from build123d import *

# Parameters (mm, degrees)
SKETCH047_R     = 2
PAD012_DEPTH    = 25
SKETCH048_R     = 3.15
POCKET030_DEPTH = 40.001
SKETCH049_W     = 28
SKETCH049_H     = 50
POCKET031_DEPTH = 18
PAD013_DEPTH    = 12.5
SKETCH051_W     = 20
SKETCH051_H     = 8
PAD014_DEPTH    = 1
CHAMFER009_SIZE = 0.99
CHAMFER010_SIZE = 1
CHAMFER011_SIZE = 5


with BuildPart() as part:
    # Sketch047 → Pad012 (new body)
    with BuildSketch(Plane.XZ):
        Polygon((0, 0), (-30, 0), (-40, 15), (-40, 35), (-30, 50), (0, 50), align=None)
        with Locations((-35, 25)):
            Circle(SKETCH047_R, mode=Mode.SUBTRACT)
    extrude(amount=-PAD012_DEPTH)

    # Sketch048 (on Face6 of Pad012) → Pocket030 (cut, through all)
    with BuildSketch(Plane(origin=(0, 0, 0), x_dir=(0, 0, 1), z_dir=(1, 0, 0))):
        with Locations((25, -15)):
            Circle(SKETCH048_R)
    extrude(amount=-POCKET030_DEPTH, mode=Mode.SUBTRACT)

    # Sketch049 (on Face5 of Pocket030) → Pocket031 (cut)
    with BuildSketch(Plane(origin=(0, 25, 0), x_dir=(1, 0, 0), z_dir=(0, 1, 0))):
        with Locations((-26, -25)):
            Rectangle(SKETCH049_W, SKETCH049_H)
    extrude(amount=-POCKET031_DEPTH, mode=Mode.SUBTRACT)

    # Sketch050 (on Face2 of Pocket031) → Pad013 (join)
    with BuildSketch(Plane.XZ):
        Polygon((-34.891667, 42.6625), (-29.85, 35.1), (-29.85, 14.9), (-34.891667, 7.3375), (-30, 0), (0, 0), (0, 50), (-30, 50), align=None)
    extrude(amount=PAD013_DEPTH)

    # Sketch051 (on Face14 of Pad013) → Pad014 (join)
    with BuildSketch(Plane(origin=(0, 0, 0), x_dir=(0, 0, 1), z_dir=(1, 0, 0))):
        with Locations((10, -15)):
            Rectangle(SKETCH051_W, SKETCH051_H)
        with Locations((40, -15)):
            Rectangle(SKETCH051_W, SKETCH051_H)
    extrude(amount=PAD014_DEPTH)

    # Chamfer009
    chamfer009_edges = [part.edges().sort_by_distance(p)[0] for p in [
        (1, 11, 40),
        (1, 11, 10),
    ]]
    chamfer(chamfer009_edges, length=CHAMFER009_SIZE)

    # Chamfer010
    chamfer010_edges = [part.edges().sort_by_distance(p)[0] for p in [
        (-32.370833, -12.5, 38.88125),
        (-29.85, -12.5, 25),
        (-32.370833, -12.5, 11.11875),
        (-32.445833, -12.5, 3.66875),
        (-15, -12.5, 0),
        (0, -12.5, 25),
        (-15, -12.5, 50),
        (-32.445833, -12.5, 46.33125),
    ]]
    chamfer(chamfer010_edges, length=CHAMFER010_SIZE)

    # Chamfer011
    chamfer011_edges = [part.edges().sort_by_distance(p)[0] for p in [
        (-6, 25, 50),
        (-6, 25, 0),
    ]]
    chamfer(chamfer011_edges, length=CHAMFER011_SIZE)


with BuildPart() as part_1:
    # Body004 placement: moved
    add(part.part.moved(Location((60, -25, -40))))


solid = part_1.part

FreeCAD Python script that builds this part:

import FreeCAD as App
import Part
import Sketcher
Q = App.Units.Quantity


def edges_at(feature, points):
    """Names of the edges that pass closest to the given points."""
    edges = feature.Shape.Edges
    near = lambda p: min(range(len(edges)), key=lambda i: edges[i].distToShape(Part.Vertex(*p))[0])
    return sorted({f"Edge{near(p) + 1}" for p in points})

doc = App.newDocument("Part")
params = doc.addObject("Spreadsheet::Sheet", "Params")
for row, (alias, value) in enumerate([
    ("sketch1_diameter", "4 mm"),
    ("sketch1_width", "30 mm"),
    ("sketch1_height", "50 mm"),
    ("sketch1_height2", "20 mm"),
    ("pad1_length", "25 mm"),
    ("sketch2_diameter", "6.3 mm"),
    ("sketch3_width", "28 mm"),
    ("sketch3_height", "50 mm"),
    ("pocket2_length", "18 mm"),
    ("sketch4_width", "30 mm"),
    ("sketch4_height", "50 mm"),
    ("sketch4_height2", "20.2 mm"),
    ("pad2_length", "12.5 mm"),
    ("sketch5_width", "8 mm"),
    ("sketch5_height", "20 mm"),
    ("pad3_length", "1 mm"),
    ("chamfer_size", "0.99 mm"),
    ("chamfer2_size", "1 mm"),
    ("chamfer3_size", "5 mm"),
], start=1):
    params.set(f"A{row}", alias)
    params.set(f"B{row}", "=" + value)
    params.setAlias(f"B{row}", alias)

body = doc.addObject("PartDesign::Body", "Body")

sketch1 = doc.addObject("Sketcher::SketchObject", "Sketch")
body.addObject(sketch1)
sketch1.AttachmentSupport = (doc.XZ_Plane, [""])
sketch1.MapMode = "FlatFace"
sketch1.addGeometry([
    Part.LineSegment(App.Vector(-30, 0, 0), App.Vector(0, 0, 0)),
    Part.LineSegment(App.Vector(0, 0, 0), App.Vector(0, 50, 0)),
    Part.LineSegment(App.Vector(0, 50, 0), App.Vector(-30, 50, 0)),
    Part.LineSegment(App.Vector(-30, 50, 0), App.Vector(-40, 35, 0)),
    Part.LineSegment(App.Vector(-40, 35, 0), App.Vector(-40, 15, 0)),
    Part.LineSegment(App.Vector(-40, 15, 0), App.Vector(-30, 0, 0)),
    Part.Circle(App.Vector(-35, 25, 0), App.Vector(0, 0, 1), 2),
], False)
sketch1.addConstraint([
    Sketcher.Constraint("Coincident", 0, 2, 1, 1),
    Sketcher.Constraint("Coincident", 1, 2, 2, 1),
    Sketcher.Constraint("Coincident", 2, 2, 3, 1),
    Sketcher.Constraint("Coincident", 3, 2, 4, 1),
    Sketcher.Constraint("Coincident", 4, 2, 5, 1),
    Sketcher.Constraint("Coincident", 5, 2, 0, 1),
    Sketcher.Constraint("Horizontal", 0),
    Sketcher.Constraint("Vertical", 1),
    Sketcher.Constraint("Horizontal", 2),
    Sketcher.Constraint("Vertical", 4),
    Sketcher.Constraint("Coincident", 0, 2, -1, 1),
    Sketcher.Constraint("Vertical", 2, 2, 5, 2),
    Sketcher.Constraint("Equal", 3, 5),
    Sketcher.Constraint("Diameter", 6, Q("4 mm")),
    Sketcher.Constraint("DistanceX", 0, 1, 0, 2, Q("30 mm")),
    Sketcher.Constraint("DistanceY", 1, 1, 1, 2, Q("50 mm")),
    Sketcher.Constraint("DistanceY", 4, 2, 4, 1, Q("20 mm")),
    Sketcher.Constraint("DistanceX", 6, 3, -1, 1, Q("35 mm")),
    Sketcher.Constraint("DistanceY", -1, 1, 6, 3, Q("25 mm")),
    Sketcher.Constraint("DistanceX", 3, 2, -1, 1, Q("40 mm")),
])
sketch1.setExpression("Constraints[13]", "Params.sketch1_diameter")
sketch1.setExpression("Constraints[14]", "Params.sketch1_width")
sketch1.setExpression("Constraints[15]", "Params.sketch1_height")
sketch1.setExpression("Constraints[16]", "Params.sketch1_height2")
pad1 = doc.addObject("PartDesign::Pad", "Pad")
body.addObject(pad1)
pad1.Profile = sketch1
pad1.setExpression("Length", "Params.pad1_length")
pad1.Reversed = True

sketch2 = doc.addObject("Sketcher::SketchObject", "Sketch001")
body.addObject(sketch2)
sketch2.AttachmentSupport = (doc.YZ_Plane, [""])
sketch2.MapMode = "FlatFace"
sketch2.addGeometry(Part.Circle(App.Vector(15, 25, 0), App.Vector(0, 0, 1), 3.1), False)
sketch2.addConstraint([
    Sketcher.Constraint("Diameter", 0, Q("6.3 mm")),
    Sketcher.Constraint("DistanceX", -1, 1, 0, 3, Q("15 mm")),
    Sketcher.Constraint("DistanceY", -1, 1, 0, 3, Q("25 mm")),
])
sketch2.setExpression("Constraints[0]", "Params.sketch2_diameter")
pocket1 = doc.addObject("PartDesign::Pocket", "Pocket")
body.addObject(pocket1)
pocket1.Profile = sketch2
pocket1.Type = "ThroughAll"

sketch3 = doc.addObject("Sketcher::SketchObject", "Sketch002")
body.addObject(sketch3)
sketch3.AttachmentSupport = (doc.XZ_Plane, [""])
sketch3.MapMode = "FlatFace"
sketch3.AttachmentOffset = App.Placement(App.Vector(0, 0, -25), App.Rotation())
sketch3.addGeometry([
    Part.LineSegment(App.Vector(-40, 0, 0), App.Vector(-40, 50, 0)),
    Part.LineSegment(App.Vector(-40, 50, 0), App.Vector(-12, 50, 0)),
    Part.LineSegment(App.Vector(-12, 50, 0), App.Vector(-12, 0, 0)),
    Part.LineSegment(App.Vector(-12, 0, 0), App.Vector(-40, 0, 0)),
], False)
sketch3.addConstraint([
    Sketcher.Constraint("Coincident", 0, 2, 1, 1),
    Sketcher.Constraint("Coincident", 1, 2, 2, 1),
    Sketcher.Constraint("Coincident", 2, 2, 3, 1),
    Sketcher.Constraint("Coincident", 3, 2, 0, 1),
    Sketcher.Constraint("Vertical", 0),
    Sketcher.Constraint("Horizontal", 1),
    Sketcher.Constraint("Vertical", 2),
    Sketcher.Constraint("Horizontal", 3),
    Sketcher.Constraint("PointOnObject", 2, 2, -1),
    Sketcher.Constraint("DistanceX", 1, 1, 1, 2, Q("28 mm")),
    Sketcher.Constraint("DistanceY", 0, 1, 0, 2, Q("50 mm")),
    Sketcher.Constraint("DistanceX", 0, 2, -1, 1, Q("40 mm")),
])
sketch3.setExpression("Constraints[9]", "Params.sketch3_width")
sketch3.setExpression("Constraints[10]", "Params.sketch3_height")
pocket2 = doc.addObject("PartDesign::Pocket", "Pocket001")
body.addObject(pocket2)
pocket2.Profile = sketch3
pocket2.setExpression("Length", "Params.pocket2_length")
pocket2.Reversed = True

sketch4 = doc.addObject("Sketcher::SketchObject", "Sketch003")
body.addObject(sketch4)
sketch4.AttachmentSupport = (doc.XZ_Plane, [""])
sketch4.MapMode = "FlatFace"
sketch4.addGeometry([
    Part.LineSegment(App.Vector(-35, 43, 0), App.Vector(-30, 35, 0)),
    Part.LineSegment(App.Vector(-30, 35, 0), App.Vector(-30, 15, 0)),
    Part.LineSegment(App.Vector(-30, 15, 0), App.Vector(-35, 7, 0)),
    Part.LineSegment(App.Vector(-35, 7, 0), App.Vector(-30, 0, 0)),
    Part.LineSegment(App.Vector(-30, 0, 0), App.Vector(0, 0, 0)),
    Part.LineSegment(App.Vector(0, 0, 0), App.Vector(0, 50, 0)),
    Part.LineSegment(App.Vector(0, 50, 0), App.Vector(-30, 50, 0)),
    Part.LineSegment(App.Vector(-30, 50, 0), App.Vector(-35, 43, 0)),
], False)
sketch4.addConstraint([
    Sketcher.Constraint("Coincident", 0, 2, 1, 1),
    Sketcher.Constraint("Coincident", 1, 2, 2, 1),
    Sketcher.Constraint("Coincident", 2, 2, 3, 1),
    Sketcher.Constraint("Coincident", 3, 2, 4, 1),
    Sketcher.Constraint("Coincident", 4, 2, 5, 1),
    Sketcher.Constraint("Coincident", 5, 2, 6, 1),
    Sketcher.Constraint("Coincident", 6, 2, 7, 1),
    Sketcher.Constraint("Coincident", 7, 2, 0, 1),
    Sketcher.Constraint("Vertical", 1),
    Sketcher.Constraint("Horizontal", 4),
    Sketcher.Constraint("Vertical", 5),
    Sketcher.Constraint("Horizontal", 6),
    Sketcher.Constraint("Coincident", 4, 2, -1, 1),
    Sketcher.Constraint("Parallel", 0, 3),
    Sketcher.Constraint("Parallel", 2, 7),
    Sketcher.Constraint("Vertical", 3, 2, 6, 2),
    Sketcher.Constraint("Vertical", 2, 2, 7, 2),
    Sketcher.Constraint("Equal", 0, 2),
    Sketcher.Constraint("DistanceX", 4, 1, 4, 2, Q("30 mm")),
    Sketcher.Constraint("DistanceY", 5, 1, 5, 2, Q("50 mm")),
    Sketcher.Constraint("DistanceY", 1, 2, 1, 1, Q("20.2 mm")),
    Sketcher.Constraint("DistanceX", 0, 2, -1, 1, Q("29.85 mm")),
    Sketcher.Constraint("DistanceY", 2, 2, 7, 2, Q("35.325 mm")),
])
sketch4.setExpression("Constraints[18]", "Params.sketch4_width")
sketch4.setExpression("Constraints[19]", "Params.sketch4_height")
sketch4.setExpression("Constraints[20]", "Params.sketch4_height2")
pad2 = doc.addObject("PartDesign::Pad", "Pad001")
body.addObject(pad2)
pad2.Profile = sketch4
pad2.setExpression("Length", "Params.pad2_length")

sketch5 = doc.addObject("Sketcher::SketchObject", "Sketch004")
body.addObject(sketch5)
sketch5.AttachmentSupport = (doc.YZ_Plane, [""])
sketch5.MapMode = "FlatFace"
sketch5.addGeometry([
    Part.LineSegment(App.Vector(11, 0, 0), App.Vector(19, 0, 0)),
    Part.LineSegment(App.Vector(19, 0, 0), App.Vector(19, 20, 0)),
    Part.LineSegment(App.Vector(19, 20, 0), App.Vector(11, 20, 0)),
    Part.LineSegment(App.Vector(11, 20, 0), App.Vector(11, 0, 0)),
    Part.LineSegment(App.Vector(11, 30, 0), App.Vector(19, 30, 0)),
    Part.LineSegment(App.Vector(19, 30, 0), App.Vector(19, 50, 0)),
    Part.LineSegment(App.Vector(19, 50, 0), App.Vector(11, 50, 0)),
    Part.LineSegment(App.Vector(11, 50, 0), App.Vector(11, 30, 0)),
], False)
sketch5.addConstraint([
    Sketcher.Constraint("Coincident", 0, 2, 1, 1),
    Sketcher.Constraint("Coincident", 1, 2, 2, 1),
    Sketcher.Constraint("Coincident", 2, 2, 3, 1),
    Sketcher.Constraint("Coincident", 3, 2, 0, 1),
    Sketcher.Constraint("Coincident", 4, 2, 5, 1),
    Sketcher.Constraint("Coincident", 5, 2, 6, 1),
    Sketcher.Constraint("Coincident", 6, 2, 7, 1),
    Sketcher.Constraint("Coincident", 7, 2, 4, 1),
    Sketcher.Constraint("Horizontal", 0),
    Sketcher.Constraint("Vertical", 1),
    Sketcher.Constraint("Horizontal", 2),
    Sketcher.Constraint("Vertical", 3),
    Sketcher.Constraint("Horizontal", 4),
    Sketcher.Constraint("Vertical", 5),
    Sketcher.Constraint("Horizontal", 6),
    Sketcher.Constraint("Vertical", 7),
    Sketcher.Constraint("PointOnObject", 0, 2, -1),
    Sketcher.Constraint("Vertical", 1, 2, 4, 2),
    Sketcher.Constraint("Vertical", 3, 2, 6, 2),
    Sketcher.Constraint("Equal", 3, 5),
    Sketcher.Constraint("DistanceX", 0, 1, 0, 2, Q("8 mm")),
    Sketcher.Constraint("DistanceY", 1, 1, 1, 2, Q("20 mm")),
    Sketcher.Constraint("DistanceX", -1, 1, 0, 2, Q("19 mm")),
    Sketcher.Constraint("DistanceY", -1, 1, 4, 2, Q("30 mm")),
])
sketch5.setExpression("Constraints[20]", "Params.sketch5_width")
sketch5.setExpression("Constraints[21]", "Params.sketch5_height")
pad3 = doc.addObject("PartDesign::Pad", "Pad002")
body.addObject(pad3)
pad3.Profile = sketch5
pad3.setExpression("Length", "Params.pad3_length")
doc.recompute()

chamfer = doc.addObject("PartDesign::Chamfer", "Chamfer")
body.addObject(chamfer)
chamfer.Base = (pad3, edges_at(pad3, [(1, 11, 40), (1, 11, 10)]))
chamfer.setExpression("Size", "Params.chamfer_size")
doc.recompute()

chamfer2 = doc.addObject("PartDesign::Chamfer", "Chamfer001")
body.addObject(chamfer2)
chamfer2.Base = (chamfer, edges_at(chamfer, [
    (-32.371, -12.5, 38.881),
    (-29.85, -12.5, 25),
    (-32.371, -12.5, 11.119),
    (-32.446, -12.5, 3.669),
    (-15, -12.5, 0),
    (0, -12.5, 25),
    (-15, -12.5, 50),
    (-32.446, -12.5, 46.331),
]))
chamfer2.setExpression("Size", "Params.chamfer2_size")
doc.recompute()

chamfer3 = doc.addObject("PartDesign::Chamfer", "Chamfer002")
body.addObject(chamfer3)
chamfer3.Base = (chamfer2, edges_at(chamfer2, [(-6, 25, 50), (-6, 25, 0)]))
chamfer3.setExpression("Size", "Params.chamfer3_size")
body2 = doc.addObject("PartDesign::Body", "Body001")
doc.recompute()

body.Placement = App.Placement(App.Vector(60, -25, -40), App.Rotation(App.Vector(0, 0, 1), 0))
boolean = doc.addObject("PartDesign::Boolean", "Boolean")
body2.addObject(boolean)
boolean.Type = "Fuse"
boolean.addObjects([body])

doc.recompute()
